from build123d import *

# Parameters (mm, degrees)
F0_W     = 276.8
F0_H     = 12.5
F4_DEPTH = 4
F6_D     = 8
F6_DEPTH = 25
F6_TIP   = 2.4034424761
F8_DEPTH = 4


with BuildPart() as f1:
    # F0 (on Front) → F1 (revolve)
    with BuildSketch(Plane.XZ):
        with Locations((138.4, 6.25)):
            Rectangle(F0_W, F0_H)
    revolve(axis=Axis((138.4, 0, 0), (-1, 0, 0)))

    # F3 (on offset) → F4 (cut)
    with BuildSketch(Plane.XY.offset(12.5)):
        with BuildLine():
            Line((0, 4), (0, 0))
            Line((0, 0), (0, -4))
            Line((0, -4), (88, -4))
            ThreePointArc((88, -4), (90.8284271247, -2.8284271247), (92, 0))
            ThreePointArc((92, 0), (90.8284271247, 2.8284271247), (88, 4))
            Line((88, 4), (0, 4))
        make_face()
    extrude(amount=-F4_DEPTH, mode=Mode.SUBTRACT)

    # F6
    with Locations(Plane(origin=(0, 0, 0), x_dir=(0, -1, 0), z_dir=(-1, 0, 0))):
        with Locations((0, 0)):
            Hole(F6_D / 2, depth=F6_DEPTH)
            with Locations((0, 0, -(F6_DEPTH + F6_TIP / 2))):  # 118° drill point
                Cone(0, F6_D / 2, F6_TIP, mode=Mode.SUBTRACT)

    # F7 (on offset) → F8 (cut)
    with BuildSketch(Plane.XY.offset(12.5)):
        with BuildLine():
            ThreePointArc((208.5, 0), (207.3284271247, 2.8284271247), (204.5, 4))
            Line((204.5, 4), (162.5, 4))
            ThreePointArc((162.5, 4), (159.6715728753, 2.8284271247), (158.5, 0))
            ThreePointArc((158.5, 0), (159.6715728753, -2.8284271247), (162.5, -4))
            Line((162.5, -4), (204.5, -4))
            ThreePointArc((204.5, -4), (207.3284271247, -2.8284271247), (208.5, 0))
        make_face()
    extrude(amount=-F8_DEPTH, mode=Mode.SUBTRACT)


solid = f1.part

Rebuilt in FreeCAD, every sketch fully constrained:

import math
import FreeCAD as App
import Part
import Sketcher
from FreeCAD import Vector


def add_polygon(sketch, points):
    """Adds a closed chain of lines whose ends are joined by coincident constraints."""
    first, n = sketch.GeometryCount, len(points)
    for a, b in zip(points, points[1:] + points[:1]):
        sketch.addGeometry(Part.LineSegment(App.Vector(*a, 0), App.Vector(*b, 0)), False)
    for i in range(n):
        sketch.addConstraint(Sketcher.Constraint("Coincident", first + i, 2, first + (i + 1) % n, 1))

doc = App.newDocument("Part")
body = doc.addObject("PartDesign::Body", "Body")

sketch1 = body.newObject("Sketcher::SketchObject", "Sketch")
sketch1.AttachmentSupport = (doc.getObject("XZ_Plane"), [""])
sketch1.MapMode = "FlatFace"
add_polygon(sketch1, [(0, 12), (0, 0), (277, 0), (277, 12)])
sketch1.addConstraint([
    Sketcher.Constraint("Vertical", 0),
    Sketcher.Constraint("Horizontal", 1),
    Sketcher.Constraint("Vertical", 2),
    Sketcher.Constraint("Horizontal", 3),
    Sketcher.Constraint("Coincident", 0, 2, -1, 1),
    Sketcher.Constraint("DistanceX", 1, 1, 1, 2, 276.8),
    Sketcher.Constraint("DistanceY", 0, 2, 0, 1, 12.5),
])
revolution = body.newObject("PartDesign::Revolution", "Revolution")
revolution.Profile = sketch1
revolution.ReferenceAxis = (sketch1, ["H_Axis"])
revolution.Angle = 360

sketch2 = body.newObject("Sketcher::SketchObject", "Sketch001")
sketch2.AttachmentSupport = (doc.getObject("XY_Plane"), [""])
sketch2.MapMode = "FlatFace"
sketch2.AttachmentOffset = App.Placement(Vector(0, 0, 12.5), App.Rotation())
sketch2.addGeometry([
    Part.LineSegment(Vector(0, 4, 0), Vector(0, -4, 0)),
    Part.LineSegment(Vector(0, -4, 0), Vector(88, -4, 0)),
    Part.ArcOfCircle(Part.Circle(Vector(88, 0, 0), Vector(0, 0, 1), 4), math.radians(-90), math.radians(0)),
    Part.ArcOfCircle(Part.Circle(Vector(88, 0, 0), Vector(0, 0, 1), 4), math.radians(0), math.radians(90)),
    Part.LineSegment(Vector(88, 4, 0), Vector(0, 4, 0)),
], False)
sketch2.addConstraint([
    Sketcher.Constraint("Coincident", 0, 2, 1, 1),
    Sketcher.Constraint("Tangent", 1, 2, 2, 1),
    Sketcher.Constraint("Tangent", 2, 2, 3, 1),
    Sketcher.Constraint("Tangent", 3, 2, 4, 1),
    Sketcher.Constraint("Coincident", 4, 2, 0, 1),
    Sketcher.Constraint("Vertical", 0),
    Sketcher.Constraint("Horizontal", 1),
    Sketcher.Constraint("Horizontal", 4),
    Sketcher.Constraint("Equal", 2, 3),
    Sketcher.Constraint("Symmetric", 0, 2, 4, 2, -1, 1),
    Sketcher.Constraint("PointOnObject", 2, 2, -1),
    Sketcher.Constraint("Radius", 2, 4.0),
    Sketcher.Constraint("DistanceX", 1, 1, 1, 2, 88.0),
])
pocket1 = body.newObject("PartDesign::Pocket", "Pocket")
pocket1.Profile = sketch2
pocket1.Length = 4

sketch3 = body.newObject("Sketcher::SketchObject", "Sketch002")
sketch3.AttachmentSupport = (doc.getObject("YZ_Plane"), [""])
sketch3.MapMode = "FlatFace"
sketch3.addGeometry(Part.Circle(Vector(0, 0, 0), Vector(0, 0, 1), 4), False)
sketch3.addConstraint([
    Sketcher.Constraint("Coincident", 0, 3, -1, 1),
    Sketcher.Constraint("Diameter", 0, 8.0),
])
doc.recompute()
hole = body.newObject("PartDesign::Hole", "Hole")
hole.Profile = sketch3
hole.ThreadType = "None"
hole.Diameter = 8
hole.DepthType = "Dimension"
hole.Depth = 25
hole.DrillPoint = "Angled"
hole.DrillPointAngle = 118
hole.Reversed = True

sketch4 = body.newObject("Sketcher::SketchObject", "Sketch003")
sketch4.AttachmentSupport = (doc.getObject("XY_Plane"), [""])
sketch4.MapMode = "FlatFace"
sketch4.AttachmentOffset = App.Placement(Vector(0, 0, 12.5), App.Rotation())
sketch4.addGeometry([
    Part.ArcOfCircle(Part.Circle(Vector(204.5, 0, 0), Vector(0, 0, 1), 4), math.radians(0), math.radians(90)),
    Part.LineSegment(Vector(204.5, 4, 0), Vector(162.5, 4, 0)),
    Part.ArcOfCircle(Part.Circle(Vector(162.5, 0, 0), Vector(0, 0, 1), 4), math.radians(90), math.radians(180)),
    Part.ArcOfCircle(Part.Circle(Vector(162.5, 0, 0), Vector(0, 0, 1), 4), math.radians(180), math.radians(270)),
    Part.LineSegment(Vector(162.5, -4, 0), Vector(204.5, -4, 0)),
    Part.ArcOfCircle(Part.Circle(Vector(204.5, 0, 0), Vector(0, 0, 1), 4), math.radians(-90), math.radians(0)),
], False)
sketch4.addConstraint([
    Sketcher.Constraint("Tangent", 0, 2, 1, 1),
    Sketcher.Constraint("Tangent", 1, 2, 2, 1),
    Sketcher.Constraint("Tangent", 2, 2, 3, 1),
    Sketcher.Constraint("Tangent", 3, 2, 4, 1),
    Sketcher.Constraint("Tangent", 4, 2, 5, 1),
    Sketcher.Constraint("Tangent", 5, 2, 0, 1),
    Sketcher.Constraint("Horizontal", 1),
    Sketcher.Constraint("Horizontal", 4),
    Sketcher.Constraint("Equal", 0, 2),
    Sketcher.Constraint("Equal", 2, 3),
    Sketcher.Constraint("PointOnObject", 0, 3, -1),
    Sketcher.Constraint("PointOnObject", 2, 2, -1),
    Sketcher.Constraint("PointOnObject", 5, 2, -1),
    Sketcher.Constraint("Radius", 0, 4.0),
    Sketcher.Constraint("DistanceX", 1, 2, 1, 1, 42.0),
    Sketcher.Constraint("DistanceX", -1, 1, 0, 3, 204.5),
])
pocket2 = body.newObject("PartDesign::Pocket", "Pocket001")
pocket2.Profile = sketch4
pocket2.Length = 4

doc.recompute()
